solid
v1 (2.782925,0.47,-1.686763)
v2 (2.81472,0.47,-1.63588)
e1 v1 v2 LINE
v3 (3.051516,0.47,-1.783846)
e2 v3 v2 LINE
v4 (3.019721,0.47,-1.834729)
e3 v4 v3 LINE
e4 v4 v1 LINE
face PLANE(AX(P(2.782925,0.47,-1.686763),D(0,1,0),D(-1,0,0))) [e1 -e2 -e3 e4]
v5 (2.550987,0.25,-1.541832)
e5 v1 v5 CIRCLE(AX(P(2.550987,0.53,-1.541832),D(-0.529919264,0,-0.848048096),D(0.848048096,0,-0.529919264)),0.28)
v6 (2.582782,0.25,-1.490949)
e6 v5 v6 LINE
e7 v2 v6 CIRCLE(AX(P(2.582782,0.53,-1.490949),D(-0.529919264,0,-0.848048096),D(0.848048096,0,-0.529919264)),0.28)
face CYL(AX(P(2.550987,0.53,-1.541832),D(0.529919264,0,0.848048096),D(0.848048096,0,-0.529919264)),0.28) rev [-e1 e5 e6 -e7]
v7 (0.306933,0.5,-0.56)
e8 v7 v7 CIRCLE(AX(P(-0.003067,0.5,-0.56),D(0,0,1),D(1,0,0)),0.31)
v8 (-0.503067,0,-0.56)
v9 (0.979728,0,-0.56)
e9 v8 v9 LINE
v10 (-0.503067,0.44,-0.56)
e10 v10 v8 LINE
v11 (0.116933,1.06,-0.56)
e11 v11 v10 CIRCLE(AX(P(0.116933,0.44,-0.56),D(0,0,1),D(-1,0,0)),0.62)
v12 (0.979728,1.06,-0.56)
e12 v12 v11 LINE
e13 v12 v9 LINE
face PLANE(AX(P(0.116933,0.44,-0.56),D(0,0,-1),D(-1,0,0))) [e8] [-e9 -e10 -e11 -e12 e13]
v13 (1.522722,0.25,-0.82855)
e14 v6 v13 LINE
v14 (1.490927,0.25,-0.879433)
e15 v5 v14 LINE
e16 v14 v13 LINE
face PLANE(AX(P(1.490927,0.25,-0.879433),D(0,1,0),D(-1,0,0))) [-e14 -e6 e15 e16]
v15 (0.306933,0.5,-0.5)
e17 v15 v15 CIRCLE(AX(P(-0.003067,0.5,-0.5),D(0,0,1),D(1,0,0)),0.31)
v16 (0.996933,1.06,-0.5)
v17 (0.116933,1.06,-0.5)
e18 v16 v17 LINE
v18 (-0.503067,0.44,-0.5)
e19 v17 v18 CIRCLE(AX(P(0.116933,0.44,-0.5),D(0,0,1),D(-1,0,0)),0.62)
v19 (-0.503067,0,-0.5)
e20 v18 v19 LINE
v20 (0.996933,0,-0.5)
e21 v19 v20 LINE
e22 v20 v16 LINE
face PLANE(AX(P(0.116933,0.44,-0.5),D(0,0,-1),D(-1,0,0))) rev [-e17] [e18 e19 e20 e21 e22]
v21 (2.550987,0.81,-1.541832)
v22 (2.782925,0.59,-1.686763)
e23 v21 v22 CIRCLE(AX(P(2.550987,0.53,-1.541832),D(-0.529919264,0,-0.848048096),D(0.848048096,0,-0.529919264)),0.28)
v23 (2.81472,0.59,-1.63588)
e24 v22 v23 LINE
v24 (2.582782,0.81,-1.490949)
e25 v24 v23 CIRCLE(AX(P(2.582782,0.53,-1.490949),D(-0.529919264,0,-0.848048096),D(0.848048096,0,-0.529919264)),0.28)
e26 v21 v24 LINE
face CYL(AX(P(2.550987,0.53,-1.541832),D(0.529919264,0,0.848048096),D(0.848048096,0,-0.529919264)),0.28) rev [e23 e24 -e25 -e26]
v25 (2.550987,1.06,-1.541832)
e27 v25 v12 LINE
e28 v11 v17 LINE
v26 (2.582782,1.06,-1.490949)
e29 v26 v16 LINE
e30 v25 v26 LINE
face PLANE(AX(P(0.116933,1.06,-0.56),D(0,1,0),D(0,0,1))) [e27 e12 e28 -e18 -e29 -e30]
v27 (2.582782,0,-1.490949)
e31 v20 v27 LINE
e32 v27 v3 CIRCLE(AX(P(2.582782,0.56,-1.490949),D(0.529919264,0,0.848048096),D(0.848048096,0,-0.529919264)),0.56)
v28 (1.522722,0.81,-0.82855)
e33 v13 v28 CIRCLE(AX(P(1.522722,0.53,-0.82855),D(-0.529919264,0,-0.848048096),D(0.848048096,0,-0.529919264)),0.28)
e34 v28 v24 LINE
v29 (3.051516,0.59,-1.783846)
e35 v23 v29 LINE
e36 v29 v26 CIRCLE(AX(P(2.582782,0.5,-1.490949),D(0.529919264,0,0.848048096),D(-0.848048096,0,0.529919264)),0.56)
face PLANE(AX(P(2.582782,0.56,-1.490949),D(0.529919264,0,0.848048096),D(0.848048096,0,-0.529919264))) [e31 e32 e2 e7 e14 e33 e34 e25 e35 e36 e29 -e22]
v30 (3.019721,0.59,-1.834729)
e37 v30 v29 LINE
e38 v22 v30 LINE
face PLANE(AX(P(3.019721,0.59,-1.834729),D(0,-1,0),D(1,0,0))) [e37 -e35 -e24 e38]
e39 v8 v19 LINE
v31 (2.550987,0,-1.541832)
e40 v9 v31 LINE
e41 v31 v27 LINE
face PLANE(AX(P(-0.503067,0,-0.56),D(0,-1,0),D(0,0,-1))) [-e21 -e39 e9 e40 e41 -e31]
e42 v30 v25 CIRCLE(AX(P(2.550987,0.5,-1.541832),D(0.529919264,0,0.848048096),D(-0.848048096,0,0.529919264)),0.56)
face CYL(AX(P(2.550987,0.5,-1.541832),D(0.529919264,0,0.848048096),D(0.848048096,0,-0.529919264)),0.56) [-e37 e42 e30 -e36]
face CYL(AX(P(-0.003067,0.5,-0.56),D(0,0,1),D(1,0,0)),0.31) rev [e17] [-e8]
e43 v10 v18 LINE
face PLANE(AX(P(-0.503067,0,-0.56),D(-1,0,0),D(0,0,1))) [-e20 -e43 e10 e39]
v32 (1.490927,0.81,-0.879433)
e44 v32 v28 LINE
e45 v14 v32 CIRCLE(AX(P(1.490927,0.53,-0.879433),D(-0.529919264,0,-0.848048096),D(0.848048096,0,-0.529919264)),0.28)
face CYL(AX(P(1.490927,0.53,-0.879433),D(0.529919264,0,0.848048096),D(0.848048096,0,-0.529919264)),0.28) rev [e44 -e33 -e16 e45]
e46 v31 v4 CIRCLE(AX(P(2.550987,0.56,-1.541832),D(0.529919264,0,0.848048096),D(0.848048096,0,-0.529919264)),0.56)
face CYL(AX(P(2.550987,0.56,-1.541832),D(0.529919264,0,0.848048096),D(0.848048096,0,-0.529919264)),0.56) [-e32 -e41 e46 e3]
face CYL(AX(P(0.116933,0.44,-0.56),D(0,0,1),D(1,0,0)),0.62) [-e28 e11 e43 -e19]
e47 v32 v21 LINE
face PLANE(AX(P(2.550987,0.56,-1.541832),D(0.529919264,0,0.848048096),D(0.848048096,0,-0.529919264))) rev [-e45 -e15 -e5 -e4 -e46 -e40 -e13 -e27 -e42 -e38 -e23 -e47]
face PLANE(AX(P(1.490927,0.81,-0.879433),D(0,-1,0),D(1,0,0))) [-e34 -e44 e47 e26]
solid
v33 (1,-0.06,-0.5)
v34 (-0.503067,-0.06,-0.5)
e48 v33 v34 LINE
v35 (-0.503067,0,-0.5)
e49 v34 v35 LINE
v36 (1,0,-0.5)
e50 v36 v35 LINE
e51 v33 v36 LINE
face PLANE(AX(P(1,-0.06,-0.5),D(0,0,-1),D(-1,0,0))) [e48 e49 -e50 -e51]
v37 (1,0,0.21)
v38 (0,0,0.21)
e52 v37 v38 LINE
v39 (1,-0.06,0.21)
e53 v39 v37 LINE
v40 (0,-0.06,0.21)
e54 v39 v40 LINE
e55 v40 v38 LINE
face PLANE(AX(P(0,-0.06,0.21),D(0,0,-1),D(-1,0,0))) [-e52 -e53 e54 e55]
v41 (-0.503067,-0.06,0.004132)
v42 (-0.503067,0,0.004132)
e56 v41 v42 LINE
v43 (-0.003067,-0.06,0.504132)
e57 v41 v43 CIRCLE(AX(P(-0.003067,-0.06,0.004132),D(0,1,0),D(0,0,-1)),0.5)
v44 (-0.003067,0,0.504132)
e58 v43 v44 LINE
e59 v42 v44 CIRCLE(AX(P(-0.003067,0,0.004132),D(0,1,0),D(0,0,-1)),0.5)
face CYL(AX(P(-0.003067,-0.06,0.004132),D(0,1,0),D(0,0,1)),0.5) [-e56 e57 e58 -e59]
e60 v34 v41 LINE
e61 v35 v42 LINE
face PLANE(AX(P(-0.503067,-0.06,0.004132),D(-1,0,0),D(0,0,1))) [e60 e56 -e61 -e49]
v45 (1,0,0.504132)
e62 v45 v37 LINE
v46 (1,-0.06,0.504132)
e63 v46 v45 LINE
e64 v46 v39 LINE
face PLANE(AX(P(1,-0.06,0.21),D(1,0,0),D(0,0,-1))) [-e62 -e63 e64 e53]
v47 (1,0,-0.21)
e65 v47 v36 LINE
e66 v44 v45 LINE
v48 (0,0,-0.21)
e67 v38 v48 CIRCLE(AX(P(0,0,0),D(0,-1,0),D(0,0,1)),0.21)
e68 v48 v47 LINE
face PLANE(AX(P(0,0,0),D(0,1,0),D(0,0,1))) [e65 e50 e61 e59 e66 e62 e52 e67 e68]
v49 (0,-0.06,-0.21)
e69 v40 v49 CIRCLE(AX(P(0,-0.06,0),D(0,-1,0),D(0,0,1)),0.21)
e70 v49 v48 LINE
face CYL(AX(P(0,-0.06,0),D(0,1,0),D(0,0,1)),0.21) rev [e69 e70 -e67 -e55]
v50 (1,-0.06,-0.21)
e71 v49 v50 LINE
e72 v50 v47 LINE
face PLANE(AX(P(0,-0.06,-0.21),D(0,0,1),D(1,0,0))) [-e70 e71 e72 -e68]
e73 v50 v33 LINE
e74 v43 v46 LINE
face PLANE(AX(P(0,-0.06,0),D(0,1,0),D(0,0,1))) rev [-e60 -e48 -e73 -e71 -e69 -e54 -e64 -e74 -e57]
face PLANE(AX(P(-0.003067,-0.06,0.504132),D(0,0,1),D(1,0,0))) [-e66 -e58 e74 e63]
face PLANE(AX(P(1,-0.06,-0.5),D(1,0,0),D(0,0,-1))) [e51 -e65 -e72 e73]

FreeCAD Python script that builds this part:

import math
import FreeCAD as App
import Part
import Sketcher
Q = App.Units.Quantity

doc = App.newDocument("Part")
body = doc.addObject("PartDesign::Body", "Body")

# Sketch on XZ plane
sketch1 = doc.addObject("Sketcher::SketchObject", "Sketch")
body.addObject(sketch1)
sketch1.AttachmentSupport = (doc.XZ_Plane, [""])
sketch1.MapMode = "FlatFace"
sketch1.addGeometry([
    Part.LineSegment(App.Vector(0, 0.5, 0), App.Vector(1, 0.5, 0)),  # 0
    Part.LineSegment(App.Vector(1, 0.5, 0), App.Vector(1, 0.21, 0)),  # 1
    Part.LineSegment(App.Vector(1, 0.21, 0), App.Vector(0, 0.21, 0)),  # 2
    Part.ArcOfCircle(Part.Circle(App.Vector(0, 0, 0), App.Vector(0, 0, 1), 0.21), math.radians(90), math.radians(270)),  # 3
    Part.LineSegment(App.Vector(0, -0.21, 0), App.Vector(1, -0.21, 0)),  # 4
    Part.LineSegment(App.Vector(1, -0.21, 0), App.Vector(1, -0.5, 0)),  # 5
    Part.LineSegment(App.Vector(1, -0.5, 0), App.Vector(-0.5, -0.5, 0)),  # 6
    Part.LineSegment(App.Vector(-0.5, -0.5, 0), App.Vector(-0.5, 0, 0)),  # 7
    Part.ArcOfCircle(Part.Circle(App.Vector(0, 0, 0), App.Vector(0, 0, 1), 0.5), math.radians(90), math.radians(180)),  # 8
], False)
sketch1.addConstraint([
    Sketcher.Constraint("Coincident", 0, 2, 1, 1),
    Sketcher.Constraint("Coincident", 1, 2, 2, 1),
    Sketcher.Constraint("Tangent", 2, 2, 3, 1),
    Sketcher.Constraint("Tangent", 3, 2, 4, 1),
    Sketcher.Constraint("Coincident", 4, 2, 5, 1),
    Sketcher.Constraint("Coincident", 5, 2, 6, 1),
    Sketcher.Constraint("Coincident", 6, 2, 7, 1),
    Sketcher.Constraint("Tangent", 7, 2, 8, 2),
    Sketcher.Constraint("Tangent", 8, 1, 0, 1),
    Sketcher.Constraint("Horizontal", 0),
    Sketcher.Constraint("Vertical", 1),
    Sketcher.Constraint("Horizontal", 2),
    Sketcher.Constraint("Horizontal", 4),
    Sketcher.Constraint("Vertical", 5),
    Sketcher.Constraint("Horizontal", 6),
    Sketcher.Constraint("Vertical", 7),
    Sketcher.Constraint("Coincident", 3, 3, -1, 1),
    Sketcher.Constraint("Vertical", 1, 2, 4, 2),
    Sketcher.Constraint("Radius", 8, Q("0.5 mm")),
    Sketcher.Constraint("DistanceX", 2, 2, 2, 1, Q("1 mm")),
    Sketcher.Constraint("Radius", 3, Q("0.21 mm")),
    Sketcher.Constraint("DistanceY", 5, 2, 5, 1, Q("0.29 mm")),
    Sketcher.Constraint("DistanceY", 1, 2, 1, 1, Q("0.294132 mm")),
    Sketcher.Constraint("DistanceX", 0, 1, 0, 2, Q("1.003067 mm")),
])
pad1 = doc.addObject("PartDesign::Pad", "Pad")
body.addObject(pad1)
pad1.Profile = sketch1
pad1.Length = 0.06
body2 = doc.addObject("PartDesign::Body", "Body001")

# Sketch on XY plane
sketch2 = doc.addObject("Sketcher::SketchObject", "Sketch001")
body2.addObject(sketch2)
sketch2.AttachmentSupport = (doc.getObject("XY_Plane001"), [""])
sketch2.MapMode = "FlatFace"
sketch2.AttachmentOffset = App.Placement(App.Vector(0, 0, -0.5), App.Rotation())
sketch2.addGeometry([
    Part.LineSegment(App.Vector(-0.5, 0.44, 0), App.Vector(-0.5, 0, 0)),  # 0
    Part.LineSegment(App.Vector(-0.5, 0, 0), App.Vector(1, 0, 0)),  # 1
    Part.LineSegment(App.Vector(1, 0, 0), App.Vector(1, 1.06, 0)),  # 2
    Part.LineSegment(App.Vector(1, 1.06, 0), App.Vector(0.12, 1.06, 0)),  # 3
    Part.ArcOfCircle(Part.Circle(App.Vector(0.12, 0.44, 0), App.Vector(0, 0, 1), 0.62), math.radians(90), math.radians(180)),  # 4
    Part.Circle(App.Vector(0, 0.5, 0), App.Vector(0, 0, 1), 0.31),  # 5
], False)
sketch2.addConstraint([
    Sketcher.Constraint("Coincident", 0, 2, 1, 1),
    Sketcher.Constraint("Coincident", 1, 2, 2, 1),
    Sketcher.Constraint("Coincident", 2, 2, 3, 1),
    Sketcher.Constraint("Tangent", 3, 2, 4, 1),
    Sketcher.Constraint("Tangent", 4, 2, 0, 1),
    Sketcher.Constraint("Vertical", 0),
    Sketcher.Constraint("Horizontal", 1),
    Sketcher.Constraint("Vertical", 2),
    Sketcher.Constraint("Horizontal", 3),
    Sketcher.Constraint("PointOnObject", 0, 2, -1),
    Sketcher.Constraint("Diameter", 5, Q("0.62 mm")),
    Sketcher.Constraint("Radius", 4, Q("0.62 mm")),
    Sketcher.Constraint("DistanceX", 1, 1, 1, 2, Q("1.5 mm")),
    Sketcher.Constraint("DistanceX", 5, 3, 1, 2, Q("1 mm")),
    Sketcher.Constraint("DistanceY", 0, 2, 0, 1, Q("0.44 mm")),
    Sketcher.Constraint("DistanceY", -1, 1, 5, 3, Q("0.5 mm")),
    Sketcher.Constraint("DistanceX", -1, 1, 4, 3, Q("0.116933 mm")),
])
pad2 = doc.addObject("PartDesign::Pad", "Pad001")
body2.addObject(pad2)
pad2.Profile = sketch2
pad2.Length = 0.06
pad2.Reversed = True

# Sketch on an angled plane
sketch3 = doc.addObject("Sketcher::SketchObject", "Sketch002")
body2.addObject(sketch3)
sketch3.Placement = App.Placement(App.Vector(0.055255, 0, 0.088426), App.Rotation(App.Vector(0, -1, 0), App.Vector(0.848048096, 0, -0.529919264), App.Vector(0.529919264, 0, 0.848048096), "ZXY"))
sketch3.addGeometry([
    Part.LineSegment(App.Vector(-1.06, 2.98, 0), App.Vector(-1.06, 1.11, 0)),  # 0
    Part.LineSegment(App.Vector(-1.06, 1.11, 0), App.Vector(0, 1.11, 0)),  # 1
    Part.LineSegment(App.Vector(0, 1.11, 0), App.Vector(0, 2.98, 0)),  # 2
    Part.ArcOfCircle(Part.Circle(App.Vector(-0.56, 2.98, 0), App.Vector(0, 0, 1), 0.56), math.radians(0), math.radians(81)),  # 3
    Part.LineSegment(App.Vector(-0.47, 3.53, 0), App.Vector(-0.47, 3.25, 0)),  # 4
    Part.ArcOfCircle(Part.Circle(App.Vector(-0.53, 2.98, 0), App.Vector(0, 0, 1), 0.28), math.radians(0), math.radians(78)),  # 5
    Part.LineSegment(App.Vector(-0.25, 2.98, 0), App.Vector(-0.25, 1.73, 0)),  # 6
    Part.ArcOfCircle(Part.Circle(App.Vector(-0.53, 1.73, 0), App.Vector(0, 0, 1), 0.28), math.radians(180), math.radians(360)),  # 7
    Part.LineSegment(App.Vector(-0.81, 1.73, 0), App.Vector(-0.81, 2.98, 0)),  # 8
    Part.ArcOfCircle(Part.Circle(App.Vector(-0.53, 2.98, 0), App.Vector(0, 0, 1), 0.28), math.radians(102), math.radians(180)),  # 9
    Part.LineSegment(App.Vector(-0.59, 3.25, 0), App.Vector(-0.59, 3.53, 0)),  # 10
    Part.ArcOfCircle(Part.Circle(App.Vector(-0.5, 2.98, 0), App.Vector(0, 0, 1), 0.56), math.radians(99), math.radians(180)),  # 11
], False)
sketch3.addConstraint([
    Sketcher.Constraint("Coincident", 0, 2, 1, 1),
    Sketcher.Constraint("Coincident", 1, 2, 2, 1),
    Sketcher.Constraint("Tangent", 2, 2, 3, 1),
    Sketcher.Constraint("Coincident", 3, 2, 4, 1),
    Sketcher.Constraint("Coincident", 4, 2, 5, 2),
    Sketcher.Constraint("Tangent", 5, 1, 6, 1),
    Sketcher.Constraint("Tangent", 6, 2, 7, 2),
    Sketcher.Constraint("Tangent", 7, 1, 8, 1),
    Sketcher.Constraint("Tangent", 8, 2, 9, 2),
    Sketcher.Constraint("Coincident", 9, 1, 10, 1),
    Sketcher.Constraint("Coincident", 10, 2, 11, 1),
    Sketcher.Constraint("Tangent", 11, 2, 0, 1),
    Sketcher.Constraint("Vertical", 0),
    Sketcher.Constraint("Horizontal", 1),
    Sketcher.Constraint("Vertical", 2),
    Sketcher.Constraint("Vertical", 4),
    Sketcher.Constraint("Vertical", 6),
    Sketcher.Constraint("Vertical", 8),
    Sketcher.Constraint("Vertical", 10),
    Sketcher.Constraint("Coincident", 9, 3, 5, 3),
    Sketcher.Constraint("Equal", 5, 7),
    Sketcher.Constraint("Equal", 3, 11),
    Sketcher.Constraint("PointOnObject", 1, 2, -2),
    Sketcher.Constraint("Horizontal", 3, 3, 5, 3),
    Sketcher.Constraint("Horizontal", 9, 3, 11, 3),
    Sketcher.Constraint("Horizontal", 4, 2, 9, 1),
    Sketcher.Constraint("Horizontal", 3, 2, 10, 2),
    Sketcher.Constraint("Radius", 3, Q("0.56 mm")),
    Sketcher.Constraint("Radius", 5, Q("0.28 mm")),
    Sketcher.Constraint("DistanceX", 1, 1, 1, 2, Q("1.06 mm")),
    Sketcher.Constraint("DistanceY", 0, 2, 0, 1, Q("1.87 mm")),
    Sketcher.Constraint("DistanceY", 6, 2, 6, 1, Q("1.25 mm")),
    Sketcher.Constraint("DistanceX", 3, 2, -1, 1, Q("0.47 mm")),
    Sketcher.Constraint("DistanceY", -1, 1, 3, 3, Q("2.980406 mm")),
])
pad3 = doc.addObject("PartDesign::Pad", "Pad002")
body2.addObject(pad3)
pad3.Profile = sketch3
pad3.Length = 0.06
pad3.Reversed = True

doc.recompute()
